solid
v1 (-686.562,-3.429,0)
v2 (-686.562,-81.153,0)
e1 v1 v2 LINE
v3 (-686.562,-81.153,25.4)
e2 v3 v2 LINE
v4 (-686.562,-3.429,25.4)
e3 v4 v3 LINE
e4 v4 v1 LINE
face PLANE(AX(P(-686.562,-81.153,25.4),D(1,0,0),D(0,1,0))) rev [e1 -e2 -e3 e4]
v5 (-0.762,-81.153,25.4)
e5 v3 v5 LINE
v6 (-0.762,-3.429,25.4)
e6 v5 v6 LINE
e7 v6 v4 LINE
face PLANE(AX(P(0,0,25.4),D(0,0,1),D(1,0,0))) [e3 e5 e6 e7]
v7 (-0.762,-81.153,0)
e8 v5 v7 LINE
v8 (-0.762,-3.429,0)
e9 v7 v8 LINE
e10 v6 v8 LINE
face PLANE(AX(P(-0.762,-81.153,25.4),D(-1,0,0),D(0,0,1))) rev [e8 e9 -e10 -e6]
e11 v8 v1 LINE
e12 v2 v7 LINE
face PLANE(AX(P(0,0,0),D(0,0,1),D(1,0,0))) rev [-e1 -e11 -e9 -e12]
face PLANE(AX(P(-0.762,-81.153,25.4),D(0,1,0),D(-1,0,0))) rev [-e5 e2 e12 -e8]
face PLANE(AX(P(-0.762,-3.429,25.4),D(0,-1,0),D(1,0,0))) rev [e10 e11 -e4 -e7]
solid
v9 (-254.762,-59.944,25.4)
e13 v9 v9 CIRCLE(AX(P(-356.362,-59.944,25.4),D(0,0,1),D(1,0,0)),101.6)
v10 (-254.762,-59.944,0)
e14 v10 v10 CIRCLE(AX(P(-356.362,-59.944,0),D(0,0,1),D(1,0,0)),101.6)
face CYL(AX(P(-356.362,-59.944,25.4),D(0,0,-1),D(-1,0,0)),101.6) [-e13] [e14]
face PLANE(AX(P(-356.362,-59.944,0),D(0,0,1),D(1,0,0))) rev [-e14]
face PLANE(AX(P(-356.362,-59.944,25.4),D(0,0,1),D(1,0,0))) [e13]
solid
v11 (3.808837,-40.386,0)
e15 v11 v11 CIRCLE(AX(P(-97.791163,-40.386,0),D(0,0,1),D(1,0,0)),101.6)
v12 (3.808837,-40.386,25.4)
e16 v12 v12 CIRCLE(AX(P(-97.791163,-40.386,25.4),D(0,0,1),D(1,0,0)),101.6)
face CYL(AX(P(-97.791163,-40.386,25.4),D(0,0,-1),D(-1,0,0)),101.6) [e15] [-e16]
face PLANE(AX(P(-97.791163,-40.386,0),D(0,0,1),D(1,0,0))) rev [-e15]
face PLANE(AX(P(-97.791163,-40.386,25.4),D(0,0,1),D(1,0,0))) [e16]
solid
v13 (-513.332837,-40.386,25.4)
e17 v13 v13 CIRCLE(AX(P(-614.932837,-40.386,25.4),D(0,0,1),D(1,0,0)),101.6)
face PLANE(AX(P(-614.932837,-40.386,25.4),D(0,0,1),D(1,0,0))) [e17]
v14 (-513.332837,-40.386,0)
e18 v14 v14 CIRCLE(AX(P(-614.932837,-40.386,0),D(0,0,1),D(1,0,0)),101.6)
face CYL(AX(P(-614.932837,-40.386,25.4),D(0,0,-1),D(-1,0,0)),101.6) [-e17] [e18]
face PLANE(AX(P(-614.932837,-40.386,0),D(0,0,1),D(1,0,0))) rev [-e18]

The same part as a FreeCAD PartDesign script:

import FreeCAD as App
import Part
import Sketcher
from FreeCAD import Vector
Q = App.Units.Quantity

doc = App.newDocument("Part")
body = doc.addObject("PartDesign::Body", "Body")

# Sketch on XY plane
sketch1 = body.newObject("Sketcher::SketchObject", "Sketch")
sketch1.AttachmentSupport = (doc.getObject("XY_Plane"), [""])
sketch1.MapMode = "FlatFace"
sketch1.addGeometry(Part.Circle(Vector(-98, -40, 0), Vector(0, 0, 1), 102), False)
sketch1.addConstraint([
    Sketcher.Constraint("Diameter", 0, Q("8 in")),
    Sketcher.Constraint("DistanceY", 0, 3, -1, 1, Q("1.59 in")),
    Sketcher.Constraint("DistanceX", 0, 3, -1, 1, 97.791163),
])
pad1 = body.newObject("PartDesign::Pad", "Pad")
pad1.Profile = sketch1
pad1.Length = Q("1 in")
body2 = doc.addObject("PartDesign::Body", "Body001")

# Sketch on XY plane
sketch2 = body2.newObject("Sketcher::SketchObject", "Sketch001")
sketch2.AttachmentSupport = (doc.getObject("XY_Plane001"), [""])
sketch2.MapMode = "FlatFace"
sketch2.addGeometry(Part.Circle(Vector(-356, -60, 0), Vector(0, 0, 1), 102), False)
sketch2.addConstraint([
    Sketcher.Constraint("Diameter", 0, Q("8 in")),
    Sketcher.Constraint("DistanceX", 0, 3, -1, 1, Q("14.03 in")),
    Sketcher.Constraint("DistanceY", 0, 3, -1, 1, Q("2.36 in")),
])
pad2 = body2.newObject("PartDesign::Pad", "Pad001")
pad2.Profile = sketch2
pad2.Length = Q("1 in")
body3 = doc.addObject("PartDesign::Body", "Body002")

# Sketch on XY plane
sketch3 = body3.newObject("Sketcher::SketchObject", "Sketch002")
sketch3.AttachmentSupport = (doc.getObject("XY_Plane002"), [""])
sketch3.MapMode = "FlatFace"
sketch3.addGeometry(Part.Circle(Vector(-615, -40, 0), Vector(0, 0, 1), 102), False)
sketch3.addConstraint([
    Sketcher.Constraint("Diameter", 0, Q("8 in")),
    Sketcher.Constraint("DistanceY", 0, 3, -1, 1, Q("1.59 in")),
    Sketcher.Constraint("DistanceX", 0, 3, -1, 1, 614.932837),
])
pad3 = body3.newObject("PartDesign::Pad", "Pad002")
pad3.Profile = sketch3
pad3.Length = Q("1 in")
body4 = doc.addObject("PartDesign::Body", "Body003")

# Sketch on XY plane
sketch4 = body4.newObject("Sketcher::SketchObject", "Sketch003")
sketch4.AttachmentSupport = (doc.getObject("XY_Plane003"), [""])
sketch4.MapMode = "FlatFace"
sketch4.addGeometry([
    Part.LineSegment(Vector(-687, -3, 0), Vector(-687, -81, 0)),
    Part.LineSegment(Vector(-687, -81, 0), Vector(-1, -81, 0)),
    Part.LineSegment(Vector(-1, -81, 0), Vector(-1, -3, 0)),
    Part.LineSegment(Vector(-1, -3, 0), Vector(-687, -3, 0)),
], False)
sketch4.addConstraint([
    Sketcher.Constraint("Coincident", 0, 2, 1, 1),
    Sketcher.Constraint("Coincident", 1, 2, 2, 1),
    Sketcher.Constraint("Coincident", 2, 2, 3, 1),
    Sketcher.Constraint("Coincident", 3, 2, 0, 1),
    Sketcher.Constraint("Vertical", 0),
    Sketcher.Constraint("Horizontal", 1),
    Sketcher.Constraint("Vertical", 2),
    Sketcher.Constraint("Horizontal", 3),
    Sketcher.Constraint("DistanceX", 1, 1, 1, 2, Q("27 in")),
    Sketcher.Constraint("DistanceY", 0, 2, 0, 1, Q("3.06 in")),
    Sketcher.Constraint("DistanceX", 0, 2, -1, 1, Q("27.03 in")),
    Sketcher.Constraint("DistanceY", 0, 2, -1, 1, Q("3.195 in")),
])
pad4 = body4.newObject("PartDesign::Pad", "Pad003")
pad4.Profile = sketch4
pad4.Length = Q("1 in")

doc.recompute()
